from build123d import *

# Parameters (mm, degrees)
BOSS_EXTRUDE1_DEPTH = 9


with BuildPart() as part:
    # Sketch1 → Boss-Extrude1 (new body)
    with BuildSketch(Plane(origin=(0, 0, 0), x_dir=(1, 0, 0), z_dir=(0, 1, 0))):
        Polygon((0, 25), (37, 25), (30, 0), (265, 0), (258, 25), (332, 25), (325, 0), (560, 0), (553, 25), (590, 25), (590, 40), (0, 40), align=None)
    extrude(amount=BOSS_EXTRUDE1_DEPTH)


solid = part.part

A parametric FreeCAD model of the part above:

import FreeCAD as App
import Part
import Sketcher
from FreeCAD import Vector
Q = App.Units.Quantity

doc = App.newDocument("Part")
body = doc.addObject("PartDesign::Body", "Body")

# Sketch on XZ plane
sketch1 = body.newObject("Sketcher::SketchObject", "Sketch")
sketch1.AttachmentSupport = (doc.getObject("XZ_Plane"), [""])
sketch1.MapMode = "FlatFace"
sketch1.addGeometry([
    Part.LineSegment(Vector(0, -25, 0), Vector(37, -25, 0)),  # 0
    Part.LineSegment(Vector(37, -25, 0), Vector(30, 0, 0)),  # 1
    Part.LineSegment(Vector(30, 0, 0), Vector(265, 0, 0)),  # 2
    Part.LineSegment(Vector(265, 0, 0), Vector(258, -25, 0)),  # 3
    Part.LineSegment(Vector(258, -25, 0), Vector(332, -25, 0)),  # 4
    Part.LineSegment(Vector(332, -25, 0), Vector(325, 0, 0)),  # 5
    Part.LineSegment(Vector(325, 0, 0), Vector(560, 0, 0)),  # 6
    Part.LineSegment(Vector(560, 0, 0), Vector(553, -25, 0)),  # 7
    Part.LineSegment(Vector(553, -25, 0), Vector(590, -25, 0)),  # 8
    Part.LineSegment(Vector(590, -25, 0), Vector(590, -40, 0)),  # 9
    Part.LineSegment(Vector(590, -40, 0), Vector(0, -40, 0)),  # 10
    Part.LineSegment(Vector(0, -40, 0), Vector(0, -25, 0)),  # 11
], False)
sketch1.addConstraint([
    Sketcher.Constraint("Coincident", 0, 2, 1, 1),
    Sketcher.Constraint("Coincident", 1, 2, 2, 1),
    Sketcher.Constraint("Coincident", 2, 2, 3, 1),
    Sketcher.Constraint("Coincident", 3, 2, 4, 1),
    Sketcher.Constraint("Coincident", 4, 2, 5, 1),
    Sketcher.Constraint("Coincident", 5, 2, 6, 1),
    Sketcher.Constraint("Coincident", 6, 2, 7, 1),
    Sketcher.Constraint("Coincident", 7, 2, 8, 1),
    Sketcher.Constraint("Coincident", 8, 2, 9, 1),
    Sketcher.Constraint("Coincident", 9, 2, 10, 1),
    Sketcher.Constraint("Coincident", 10, 2, 11, 1),
    Sketcher.Constraint("Coincident", 11, 2, 0, 1),
    Sketcher.Constraint("Horizontal", 0),
    Sketcher.Constraint("Horizontal", 2),
    Sketcher.Constraint("Horizontal", 4),
    Sketcher.Constraint("Horizontal", 6),
    Sketcher.Constraint("Horizontal", 8),
    Sketcher.Constraint("Vertical", 9),
    Sketcher.Constraint("Horizontal", 10),
    Sketcher.Constraint("Vertical", 11),
    Sketcher.Constraint("PointOnObject", 1, 2, -1),
    Sketcher.Constraint("PointOnObject", 5, 2, -1),
    Sketcher.Constraint("PointOnObject", 10, 2, -2),
    Sketcher.Constraint("Parallel", 1, 5),
    Sketcher.Constraint("Parallel", 3, 7),
    Sketcher.Constraint("Horizontal", 0, 2, 3, 2),
    Sketcher.Constraint("Horizontal", 4, 2, 7, 2),
    Sketcher.Constraint("Equal", 2, 6),
    Sketcher.Constraint("Equal", 0, 8),
    Sketcher.Constraint("Equal", 1, 3),
    Sketcher.Constraint("DistanceX", 0, 1, 0, 2, Q("37 mm")),
    Sketcher.Constraint("DistanceX", 2, 1, 2, 2, Q("235 mm")),
    Sketcher.Constraint("DistanceX", 4, 1, 4, 2, Q("74 mm")),
    Sketcher.Constraint("DistanceX", 10, 2, 10, 1, Q("590 mm")),
    Sketcher.Constraint("DistanceY", 9, 2, 9, 1, Q("15 mm")),
    Sketcher.Constraint("DistanceY", 0, 2, -1, 1, Q("25 mm")),
])
pad1 = body.newObject("PartDesign::Pad", "Pad")
pad1.Profile = sketch1
pad1.Length = 9
pad1.Reversed = True

doc.recompute()
